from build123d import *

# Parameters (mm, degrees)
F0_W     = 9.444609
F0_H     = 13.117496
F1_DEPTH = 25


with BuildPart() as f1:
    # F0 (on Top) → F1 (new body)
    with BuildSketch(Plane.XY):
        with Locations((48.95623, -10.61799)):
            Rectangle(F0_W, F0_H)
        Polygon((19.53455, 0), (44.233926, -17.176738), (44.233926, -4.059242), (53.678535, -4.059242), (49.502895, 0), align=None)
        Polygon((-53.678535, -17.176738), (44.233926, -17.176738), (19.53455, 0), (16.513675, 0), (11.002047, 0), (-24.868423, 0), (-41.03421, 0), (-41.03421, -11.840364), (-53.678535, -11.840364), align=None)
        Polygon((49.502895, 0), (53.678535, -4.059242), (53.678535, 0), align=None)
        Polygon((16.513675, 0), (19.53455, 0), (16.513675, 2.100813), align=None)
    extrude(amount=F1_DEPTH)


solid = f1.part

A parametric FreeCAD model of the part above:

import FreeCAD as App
import Part
import Sketcher

V = App.Vector
Q = App.Units.Quantity

doc = App.newDocument("Part")
body = doc.addObject("PartDesign::Body", "Body")

sketch1 = body.newObject("Sketcher::SketchObject", "Sketch")
sketch1.AttachmentSupport = (doc.getObject("XY_Plane"), [""])
sketch1.MapMode = "FlatFace"
sketch1.addGeometry(Part.LineSegment(V(53.678534, -17.176738, 0), V(53.678534, -4.059242, 0)), False)
sketch1.addGeometry(Part.LineSegment(V(53.678535, -4.059242, 0), V(53.678534, -4.059242, 0)), False)
sketch1.addGeometry(Part.LineSegment(V(53.678535, -4.059242, 0), V(53.678535, 0, 0)), False)
sketch1.addGeometry(Part.LineSegment(V(53.678535, 0, 0), V(19.53455, 0, 0)), False)
sketch1.addGeometry(Part.LineSegment(V(19.53455, 0, 0), V(16.513675, 2.100813, 0)), False)
sketch1.addGeometry(Part.LineSegment(V(16.513675, 2.100813, 0), V(16.513675, 0, 0)), False)
sketch1.addGeometry(Part.LineSegment(V(16.513675, 0, 0), V(-41.03421, 0, 0)), False)
sketch1.addGeometry(Part.LineSegment(V(-41.03421, 0, 0), V(-41.03421, -11.840364, 0)), False)
sketch1.addGeometry(Part.LineSegment(V(-41.03421, -11.840364, 0), V(-53.678535, -11.840364, 0)), False)
sketch1.addGeometry(Part.LineSegment(V(-53.678535, -11.840364, 0), V(-53.678535, -17.176738, 0)), False)
sketch1.addGeometry(Part.LineSegment(V(-53.678535, -17.176738, 0), V(53.678534, -17.176738, 0)), False)
sketch1.addConstraint(Sketcher.Constraint("Coincident", 0, 2, 1, 1))
sketch1.addConstraint(Sketcher.Constraint("Coincident", 1, 2, 2, 1))
sketch1.addConstraint(Sketcher.Constraint("Coincident", 2, 2, 3, 1))
sketch1.addConstraint(Sketcher.Constraint("Coincident", 3, 2, 4, 1))
sketch1.addConstraint(Sketcher.Constraint("Coincident", 4, 2, 5, 1))
sketch1.addConstraint(Sketcher.Constraint("Coincident", 5, 2, 6, 1))
sketch1.addConstraint(Sketcher.Constraint("Coincident", 6, 2, 7, 1))
sketch1.addConstraint(Sketcher.Constraint("Coincident", 7, 2, 8, 1))
sketch1.addConstraint(Sketcher.Constraint("Coincident", 8, 2, 9, 1))
sketch1.addConstraint(Sketcher.Constraint("Coincident", 9, 2, 10, 1))
sketch1.addConstraint(Sketcher.Constraint("Coincident", 10, 2, 0, 1))
sketch1.addConstraint(Sketcher.Constraint("Vertical", 0))
sketch1.addConstraint(Sketcher.Constraint("Horizontal", 1))
sketch1.addConstraint(Sketcher.Constraint("Vertical", 2))
sketch1.addConstraint(Sketcher.Constraint("Horizontal", 3))
sketch1.addConstraint(Sketcher.Constraint("Vertical", 5))
sketch1.addConstraint(Sketcher.Constraint("Horizontal", 6))
sketch1.addConstraint(Sketcher.Constraint("Vertical", 7))
sketch1.addConstraint(Sketcher.Constraint("Horizontal", 8))
sketch1.addConstraint(Sketcher.Constraint("Vertical", 9))
sketch1.addConstraint(Sketcher.Constraint("Horizontal", 10))
sketch1.addConstraint(Sketcher.Constraint("PointOnObject", 2, 2, -1))
sketch1.addConstraint(Sketcher.Constraint("PointOnObject", 5, 2, -1))
sketch1.addConstraint(Sketcher.Constraint("DistanceX", 10, 1, 10, 2, Q("107.357069 mm")))
sketch1.addConstraint(Sketcher.Constraint("Distance", 4, Q("3.679552 mm")))
sketch1.addConstraint(Sketcher.Constraint("DistanceX", 3, 2, 3, 1, Q("34.143985 mm")))
sketch1.addConstraint(Sketcher.Constraint("DistanceX", 6, 2, 6, 1, Q("57.547885 mm")))
sketch1.addConstraint(Sketcher.Constraint("DistanceX", 8, 2, 8, 1, Q("12.644325 mm")))
sketch1.addConstraint(Sketcher.Constraint("DistanceY", 0, 1, 0, 2, Q("13.117496 mm")))
sketch1.addConstraint(Sketcher.Constraint("DistanceY", 2, 1, 2, 2, Q("4.059242 mm")))
sketch1.addConstraint(Sketcher.Constraint("DistanceY", 5, 2, 5, 1, Q("2.100813 mm")))
sketch1.addConstraint(Sketcher.Constraint("DistanceY", 7, 2, 7, 1, Q("11.840364 mm")))
sketch1.addConstraint(Sketcher.Constraint("DistanceX", -1, 1, 3, 2, Q("19.53455 mm")))
pad1 = body.newObject("PartDesign::Pad", "Pad")
pad1.Profile = sketch1
pad1.Length = 25

doc.recompute()
